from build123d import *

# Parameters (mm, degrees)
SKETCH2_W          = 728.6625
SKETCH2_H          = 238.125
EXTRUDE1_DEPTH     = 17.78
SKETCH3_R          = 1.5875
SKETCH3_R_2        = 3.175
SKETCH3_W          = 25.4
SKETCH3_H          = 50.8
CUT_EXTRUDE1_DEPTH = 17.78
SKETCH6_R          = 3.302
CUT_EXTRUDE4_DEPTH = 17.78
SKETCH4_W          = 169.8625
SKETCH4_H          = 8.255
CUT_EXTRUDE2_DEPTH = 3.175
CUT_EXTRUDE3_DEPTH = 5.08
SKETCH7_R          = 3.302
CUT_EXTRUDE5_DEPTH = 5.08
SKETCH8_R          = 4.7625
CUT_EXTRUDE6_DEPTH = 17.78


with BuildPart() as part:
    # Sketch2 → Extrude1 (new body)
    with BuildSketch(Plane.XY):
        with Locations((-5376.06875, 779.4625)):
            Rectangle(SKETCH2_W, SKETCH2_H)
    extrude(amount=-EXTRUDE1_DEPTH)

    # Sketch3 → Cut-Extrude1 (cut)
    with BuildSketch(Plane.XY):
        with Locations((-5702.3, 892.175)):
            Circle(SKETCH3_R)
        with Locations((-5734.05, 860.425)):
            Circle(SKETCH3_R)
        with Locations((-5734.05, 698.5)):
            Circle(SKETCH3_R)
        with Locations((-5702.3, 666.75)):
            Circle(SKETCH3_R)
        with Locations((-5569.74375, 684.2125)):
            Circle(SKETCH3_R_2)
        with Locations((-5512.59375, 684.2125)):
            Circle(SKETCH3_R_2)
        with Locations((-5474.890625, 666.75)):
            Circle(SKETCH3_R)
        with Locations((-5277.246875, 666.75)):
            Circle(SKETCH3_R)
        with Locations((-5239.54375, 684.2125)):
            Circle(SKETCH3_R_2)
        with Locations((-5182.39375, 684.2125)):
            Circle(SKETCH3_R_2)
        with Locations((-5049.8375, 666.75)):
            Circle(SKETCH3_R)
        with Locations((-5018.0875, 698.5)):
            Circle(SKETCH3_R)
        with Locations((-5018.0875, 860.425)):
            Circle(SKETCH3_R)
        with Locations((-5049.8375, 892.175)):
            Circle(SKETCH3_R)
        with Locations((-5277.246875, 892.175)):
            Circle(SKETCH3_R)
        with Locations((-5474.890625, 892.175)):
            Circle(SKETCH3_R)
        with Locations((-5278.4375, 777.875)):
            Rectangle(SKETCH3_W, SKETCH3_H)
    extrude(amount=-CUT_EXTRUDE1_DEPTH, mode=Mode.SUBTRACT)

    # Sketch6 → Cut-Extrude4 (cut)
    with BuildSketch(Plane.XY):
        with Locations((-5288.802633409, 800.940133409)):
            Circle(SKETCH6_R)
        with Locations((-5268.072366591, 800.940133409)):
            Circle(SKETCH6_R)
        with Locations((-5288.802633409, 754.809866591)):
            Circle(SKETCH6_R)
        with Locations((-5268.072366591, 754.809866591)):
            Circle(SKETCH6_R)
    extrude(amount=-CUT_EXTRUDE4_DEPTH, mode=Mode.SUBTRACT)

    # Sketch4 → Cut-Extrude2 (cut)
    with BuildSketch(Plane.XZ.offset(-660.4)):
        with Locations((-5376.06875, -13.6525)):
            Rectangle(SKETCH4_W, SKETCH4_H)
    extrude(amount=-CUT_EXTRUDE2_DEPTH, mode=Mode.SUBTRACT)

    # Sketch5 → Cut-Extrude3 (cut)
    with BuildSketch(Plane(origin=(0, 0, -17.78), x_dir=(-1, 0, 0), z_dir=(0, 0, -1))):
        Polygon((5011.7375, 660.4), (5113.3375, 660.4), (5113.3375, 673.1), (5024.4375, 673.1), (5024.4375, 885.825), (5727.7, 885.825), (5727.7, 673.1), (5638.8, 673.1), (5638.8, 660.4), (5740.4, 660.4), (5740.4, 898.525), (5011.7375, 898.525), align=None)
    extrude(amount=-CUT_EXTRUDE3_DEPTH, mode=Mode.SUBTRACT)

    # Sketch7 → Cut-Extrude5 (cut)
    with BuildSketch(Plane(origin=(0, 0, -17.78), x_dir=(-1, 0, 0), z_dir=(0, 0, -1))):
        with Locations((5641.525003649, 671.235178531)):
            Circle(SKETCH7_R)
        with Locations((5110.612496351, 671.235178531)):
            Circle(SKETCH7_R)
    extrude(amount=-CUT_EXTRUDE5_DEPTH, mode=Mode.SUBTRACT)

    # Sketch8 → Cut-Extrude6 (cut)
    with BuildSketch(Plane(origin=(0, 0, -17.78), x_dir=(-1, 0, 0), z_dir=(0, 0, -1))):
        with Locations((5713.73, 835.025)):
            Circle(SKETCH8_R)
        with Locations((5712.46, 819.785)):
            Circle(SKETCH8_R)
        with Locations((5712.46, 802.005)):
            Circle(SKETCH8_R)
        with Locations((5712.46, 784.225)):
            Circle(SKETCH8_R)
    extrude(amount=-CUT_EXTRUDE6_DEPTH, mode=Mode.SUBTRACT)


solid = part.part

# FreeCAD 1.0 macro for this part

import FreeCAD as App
import Part
import Sketcher
from FreeCAD import Vector
Q = App.Units.Quantity


def add_polygon(sketch, points):
    """Adds a closed chain of lines whose ends are joined by coincident constraints."""
    first, n = sketch.GeometryCount, len(points)
    for a, b in zip(points, points[1:] + points[:1]):
        sketch.addGeometry(Part.LineSegment(App.Vector(*a, 0), App.Vector(*b, 0)), False)
    for i in range(n):
        sketch.addConstraint(Sketcher.Constraint("Coincident", first + i, 2, first + (i + 1) % n, 1))

doc = App.newDocument("Part")
body = doc.addObject("PartDesign::Body", "Body")

# Sketch on XY plane
sketch1 = body.newObject("Sketcher::SketchObject", "Sketch")
sketch1.AttachmentSupport = (doc.getObject("XY_Plane"), [""])
sketch1.MapMode = "FlatFace"
add_polygon(sketch1, [(-5740, 899), (-5740, 660), (-5012, 660), (-5012, 899)])  # lines 0-3
sketch1.addConstraint([
    Sketcher.Constraint("Vertical", 0),
    Sketcher.Constraint("Horizontal", 1),
    Sketcher.Constraint("Vertical", 2),
    Sketcher.Constraint("Horizontal", 3),
    Sketcher.Constraint("DistanceX", 0, 2, -1, 1, Q("226 in")),
    Sketcher.Constraint("DistanceY", -1, 1, 0, 2, Q("26 in")),
    Sketcher.Constraint("DistanceX", 1, 1, 1, 2, Q("28.6875 in")),
    Sketcher.Constraint("DistanceY", 0, 2, 0, 1, Q("9.375 in")),
])
pad1 = body.newObject("PartDesign::Pad", "Pad")
pad1.Profile = sketch1
pad1.Length = Q("0.7 in")
pad1.Reversed = True

# Sketch on XY plane
sketch2 = body.newObject("Sketcher::SketchObject", "Sketch001")
sketch2.AttachmentSupport = (doc.getObject("XY_Plane"), [""])
sketch2.MapMode = "FlatFace"
sketch2.addGeometry(Part.Circle(Vector(-5702.3, 892.2, 0), Vector(0, 0, 1), 1.6), False)  # 0
sketch2.addGeometry(Part.Circle(Vector(-5734.1, 860.4, 0), Vector(0, 0, 1), 1.6), False)  # 1
sketch2.addGeometry(Part.Circle(Vector(-5734.1, 698.5, 0), Vector(0, 0, 1), 1.6), False)  # 2
sketch2.addGeometry(Part.Circle(Vector(-5702.3, 666.8, 0), Vector(0, 0, 1), 1.6), False)  # 3
sketch2.addGeometry(Part.Circle(Vector(-5569.7, 684.2, 0), Vector(0, 0, 1), 3.2), False)  # 4
sketch2.addGeometry(Part.Circle(Vector(-5512.6, 684.2, 0), Vector(0, 0, 1), 3.2), False)  # 5
sketch2.addGeometry(Part.Circle(Vector(-5474.9, 666.8, 0), Vector(0, 0, 1), 1.6), False)  # 6
sketch2.addGeometry(Part.Circle(Vector(-5277.2, 666.8, 0), Vector(0, 0, 1), 1.6), False)  # 7
sketch2.addGeometry(Part.Circle(Vector(-5239.5, 684.2, 0), Vector(0, 0, 1), 3.2), False)  # 8
sketch2.addGeometry(Part.Circle(Vector(-5182.4, 684.2, 0), Vector(0, 0, 1), 3.2), False)  # 9
sketch2.addGeometry(Part.Circle(Vector(-5049.8, 666.8, 0), Vector(0, 0, 1), 1.6), False)  # 10
sketch2.addGeometry(Part.Circle(Vector(-5018.1, 698.5, 0), Vector(0, 0, 1), 1.6), False)  # 11
sketch2.addGeometry(Part.Circle(Vector(-5018.1, 860.4, 0), Vector(0, 0, 1), 1.6), False)  # 12
sketch2.addGeometry(Part.Circle(Vector(-5049.8, 892.2, 0), Vector(0, 0, 1), 1.6), False)  # 13
sketch2.addGeometry(Part.Circle(Vector(-5277.2, 892.2, 0), Vector(0, 0, 1), 1.6), False)  # 14
sketch2.addGeometry(Part.Circle(Vector(-5474.9, 892.2, 0), Vector(0, 0, 1), 1.6), False)  # 15
add_polygon(sketch2, [(-5291.1, 803.3), (-5291.1, 752.5), (-5265.7, 752.5), (-5265.7, 803.3)])  # lines 16-19
sketch2.addConstraint([
    Sketcher.Constraint("Vertical", 16),
    Sketcher.Constraint("Horizontal", 17),
    Sketcher.Constraint("Vertical", 18),
    Sketcher.Constraint("Horizontal", 19),
    Sketcher.Constraint("Equal", 0, 1),
    Sketcher.Constraint("Equal", 1, 2),
    Sketcher.Constraint("Equal", 2, 3),
    Sketcher.Constraint("Equal", 4, 5),
    Sketcher.Constraint("Equal", 3, 6),
    Sketcher.Constraint("Equal", 6, 7),
    Sketcher.Constraint("Equal", 5, 8),
    Sketcher.Constraint("Equal", 8, 9),
    Sketcher.Constraint("Equal", 7, 10),
    Sketcher.Constraint("Equal", 10, 11),
    Sketcher.Constraint("Equal", 11, 12),
    Sketcher.Constraint("Equal", 12, 13),
    Sketcher.Constraint("Equal", 13, 14),
    Sketcher.Constraint("Equal", 14, 15),
    Sketcher.Constraint("Horizontal", 4, 3, 5, 3),
    Sketcher.Constraint("Horizontal", 3, 3, 6, 3),
    Sketcher.Constraint("Horizontal", 6, 3, 7, 3),
    Sketcher.Constraint("Horizontal", 5, 3, 8, 3),
    Sketcher.Constraint("Horizontal", 8, 3, 9, 3),
    Sketcher.Constraint("Horizontal", 7, 3, 10, 3),
    Sketcher.Constraint("Horizontal", 2, 3, 11, 3),
    Sketcher.Constraint("Horizontal", 1, 3, 12, 3),
    Sketcher.Constraint("Horizontal", 0, 3, 13, 3),
    Sketcher.Constraint("Horizontal", 13, 3, 14, 3),
    Sketcher.Constraint("Horizontal", 14, 3, 15, 3),
    Sketcher.Constraint("Vertical", 1, 3, 2, 3),
    Sketcher.Constraint("Vertical", 0, 3, 3, 3),
    Sketcher.Constraint("Vertical", 11, 3, 12, 3),
    Sketcher.Constraint("Vertical", 10, 3, 13, 3),
    Sketcher.Constraint("Vertical", 7, 3, 14, 3),
    Sketcher.Constraint("Vertical", 6, 3, 15, 3),
    Sketcher.Constraint("Diameter", 4, Q("0.25 in")),
    Sketcher.Constraint("DistanceX", 17, 1, 17, 2, Q("1 in")),
    Sketcher.Constraint("DistanceY", 16, 2, 16, 1, Q("2 in")),
    Sketcher.Constraint("Diameter", 0, Q("0.125 in")),
    Sketcher.Constraint("DistanceX", 4, 3, 8, 3, Q("13 in")),
    Sketcher.Constraint("DistanceX", 5, 3, 9, 3, Q("13 in")),
    Sketcher.Constraint("DistanceX", 0, 3, -1, 1, Q("224.5 in")),
    Sketcher.Constraint("DistanceY", -1, 1, 2, 3, Q("27.5 in")),
    Sketcher.Constraint("DistanceY", 16, 2, 14, 3, Q("5.5 in")),
    Sketcher.Constraint("DistanceX", 1, 3, -1, 1, Q("225.75 in")),
    Sketcher.Constraint("DistanceY", -1, 1, 3, 3, Q("26.25 in")),
    Sketcher.Constraint("DistanceY", 1, 3, 0, 3, Q("1.25 in")),
    Sketcher.Constraint("DistanceX", 4, 3, 5, 3, Q("2.25 in")),
    Sketcher.Constraint("DistanceX", 10, 3, 11, 3, Q("1.25 in")),
    Sketcher.Constraint("DistanceY", -1, 1, 0, 3, Q("35.125 in")),
    Sketcher.Constraint("DistanceX", 4, 3, -1, 1, Q("219.28125 in")),
    Sketcher.Constraint("DistanceY", -1, 1, 4, 3, Q("26.9375 in")),
    Sketcher.Constraint("DistanceX", 6, 3, -1, 1, Q("215.546875 in")),
    Sketcher.Constraint("DistanceX", 7, 3, -1, 1, Q("207.765625 in")),
    Sketcher.Constraint("DistanceX", 10, 3, -1, 1, Q("198.8125 in")),
    Sketcher.Constraint("DistanceX", 16, 2, -1, 1, Q("208.3125 in")),
])
pocket1 = body.newObject("PartDesign::Pocket", "Pocket")
pocket1.Profile = sketch2
pocket1.Length = Q("0.7 in")

# Sketch on XY plane
sketch3 = body.newObject("Sketcher::SketchObject", "Sketch002")
sketch3.AttachmentSupport = (doc.getObject("XY_Plane"), [""])
sketch3.MapMode = "FlatFace"
sketch3.addGeometry([
    Part.Circle(Vector(-5288.8, 800.9, 0), Vector(0, 0, 1), 3.3),
    Part.Circle(Vector(-5268.1, 800.9, 0), Vector(0, 0, 1), 3.3),
    Part.Circle(Vector(-5288.8, 754.8, 0), Vector(0, 0, 1), 3.3),
    Part.Circle(Vector(-5268.1, 754.8, 0), Vector(0, 0, 1), 3.3),
], False)
sketch3.addConstraint([
    Sketcher.Constraint("Equal", 0, 1),
    Sketcher.Constraint("Equal", 1, 2),
    Sketcher.Constraint("Equal", 2, 3),
    Sketcher.Constraint("Horizontal", 0, 3, 1, 3),
    Sketcher.Constraint("Horizontal", 2, 3, 3, 3),
    Sketcher.Constraint("Vertical", 0, 3, 2, 3),
    Sketcher.Constraint("Vertical", 1, 3, 3, 3),
    Sketcher.Constraint("Diameter", 0, Q("0.26 in")),
    Sketcher.Constraint("DistanceX", 0, 3, -1, 1, Q("5288.802633 mm")),
    Sketcher.Constraint("DistanceY", -1, 1, 0, 3, Q("800.940133 mm")),
    Sketcher.Constraint("DistanceX", 1, 3, -1, 1, Q("5268.072367 mm")),
    Sketcher.Constraint("DistanceY", -1, 1, 2, 3, Q("754.809867 mm")),
])
pocket2 = body.newObject("PartDesign::Pocket", "Pocket001")
pocket2.Profile = sketch3
pocket2.Length = Q("0.7 in")

# Sketch on XZ plane
sketch4 = body.newObject("Sketcher::SketchObject", "Sketch003")
sketch4.AttachmentSupport = (doc.getObject("XZ_Plane"), [""])
sketch4.MapMode = "FlatFace"
sketch4.AttachmentOffset = App.Placement(Vector(0, 0, -26 * 25.4), App.Rotation())
add_polygon(sketch4, [(-5461, -10), (-5461, -18), (-5291, -18), (-5291, -10)])  # lines 0-3
sketch4.addConstraint([
    Sketcher.Constraint("Vertical", 0),
    Sketcher.Constraint("Horizontal", 1),
    Sketcher.Constraint("Vertical", 2),
    Sketcher.Constraint("Horizontal", 3),
    Sketcher.Constraint("DistanceX", 0, 2, -1, 1, Q("215 in")),
    Sketcher.Constraint("DistanceY", 0, 2, -1, 1, Q("0.7 in")),
    Sketcher.Constraint("DistanceX", 1, 1, 1, 2, Q("6.6875 in")),
    Sketcher.Constraint("DistanceY", 0, 2, 0, 1, Q("0.325 in")),
])
pocket3 = body.newObject("PartDesign::Pocket", "Pocket002")
pocket3.Profile = sketch4
pocket3.Length = Q("0.125 in")

# Sketch on XY plane
sketch5 = body.newObject("Sketcher::SketchObject", "Sketch004")
sketch5.AttachmentSupport = (doc.getObject("XY_Plane"), [""])
sketch5.MapMode = "FlatFace"
sketch5.AttachmentOffset = App.Placement(Vector(0, 0, -0.7 * 25.4), App.Rotation())
add_polygon(sketch5, [(-5012, 660), (-5113, 660), (-5113, 673), (-5024, 673), (-5024, 886), (-5728, 886), (-5728, 673), (-5639, 673), (-5639, 660), (-5740, 660), (-5740, 899), (-5012, 899)])  # lines 0-11
sketch5.addConstraint([
    Sketcher.Constraint("Horizontal", 0),
    Sketcher.Constraint("Vertical", 1),
    Sketcher.Constraint("Horizontal", 2),
    Sketcher.Constraint("Vertical", 3),
    Sketcher.Constraint("Horizontal", 4),
    Sketcher.Constraint("Vertical", 5),
    Sketcher.Constraint("Horizontal", 6),
    Sketcher.Constraint("Vertical", 7),
    Sketcher.Constraint("Horizontal", 8),
    Sketcher.Constraint("Vertical", 9),
    Sketcher.Constraint("Horizontal", 10),
    Sketcher.Constraint("Vertical", 11),
    Sketcher.Constraint("Horizontal", 2, 2, 5, 2),
    Sketcher.Constraint("Horizontal", 0, 2, 7, 2),
    Sketcher.Constraint("Equal", 2, 6),
    Sketcher.Constraint("Equal", 0, 8),
    Sketcher.Constraint("DistanceX", 0, 2, 0, 1, Q("4 in")),
    Sketcher.Constraint("DistanceX", 2, 1, 2, 2, Q("3.5 in")),
    Sketcher.Constraint("DistanceY", 1, 1, 1, 2, Q("0.5 in")),
    Sketcher.Constraint("DistanceY", -1, 1, 0, 2, Q("26 in")),
    Sketcher.Constraint("DistanceX", 6, 2, -1, 1, Q("222 in")),
    Sketcher.Constraint("DistanceY", 4, 2, 9, 2, Q("0.5 in")),
    Sketcher.Constraint("DistanceX", 4, 2, 4, 1, Q("27.6875 in")),
    Sketcher.Constraint("DistanceY", 3, 1, 3, 2, Q("8.375 in")),
])
pocket4 = body.newObject("PartDesign::Pocket", "Pocket003")
pocket4.Profile = sketch5
pocket4.Length = Q("0.2 in")
pocket4.Reversed = True

# Sketch on XY plane
sketch6 = body.newObject("Sketcher::SketchObject", "Sketch005")
sketch6.AttachmentSupport = (doc.getObject("XY_Plane"), [""])
sketch6.MapMode = "FlatFace"
sketch6.AttachmentOffset = App.Placement(Vector(0, 0, -0.7 * 25.4), App.Rotation())
sketch6.addGeometry([
    Part.Circle(Vector(-5641.5, 671.2, 0), Vector(0, 0, 1), 3.3),
    Part.Circle(Vector(-5110.6, 671.2, 0), Vector(0, 0, 1), 3.3),
], False)
sketch6.addConstraint([
    Sketcher.Constraint("Equal", 0, 1),
    Sketcher.Constraint("Horizontal", 0, 3, 1, 3),
    Sketcher.Constraint("Diameter", 0, Q("0.26 in")),
    Sketcher.Constraint("DistanceY", -1, 1, 0, 3, Q("671.235179 mm")),
    Sketcher.Constraint("DistanceX", 0, 3, -1, 1, Q("5641.525004 mm")),
    Sketcher.Constraint("DistanceX", 1, 3, -1, 1, Q("5110.612496 mm")),
])
pocket5 = body.newObject("PartDesign::Pocket", "Pocket004")
pocket5.Profile = sketch6
pocket5.Length = Q("0.2 in")
pocket5.Reversed = True

# Sketch on XY plane
sketch7 = body.newObject("Sketcher::SketchObject", "Sketch006")
sketch7.AttachmentSupport = (doc.getObject("XY_Plane"), [""])
sketch7.MapMode = "FlatFace"
sketch7.AttachmentOffset = App.Placement(Vector(0, 0, -0.7 * 25.4), App.Rotation())
sketch7.addGeometry([
    Part.Circle(Vector(-5713.7, 835, 0), Vector(0, 0, 1), 4.8),
    Part.Circle(Vector(-5712.5, 819.8, 0), Vector(0, 0, 1), 4.8),
    Part.Circle(Vector(-5712.5, 802, 0), Vector(0, 0, 1), 4.8),
    Part.Circle(Vector(-5712.5, 784.2, 0), Vector(0, 0, 1), 4.8),
], False)
sketch7.addConstraint([
    Sketcher.Constraint("Equal", 0, 1),
    Sketcher.Constraint("Equal", 1, 2),
    Sketcher.Constraint("Equal", 2, 3),
    Sketcher.Constraint("Vertical", 1, 3, 2, 3),
    Sketcher.Constraint("Vertical", 2, 3, 3, 3),
    Sketcher.Constraint("Diameter", 0, Q("0.375 in")),
    Sketcher.Constraint("DistanceY", 3, 3, 0, 3, Q("2 in")),
    Sketcher.Constraint("DistanceX", 1, 3, -1, 1, Q("224.9 in")),
    Sketcher.Constraint("DistanceY", 1, 3, 0, 3, Q("0.6 in")),
    Sketcher.Constraint("DistanceY", 2, 3, 1, 3, Q("0.7 in")),
    Sketcher.Constraint("DistanceX", 0, 3, -1, 1, Q("224.95 in")),
    Sketcher.Constraint("DistanceY", -1, 1, 0, 3, Q("32.875 in")),
])
pocket6 = body.newObject("PartDesign::Pocket", "Pocket005")
pocket6.Profile = sketch7
pocket6.Length = Q("0.7 in")
pocket6.Reversed = True

doc.recompute()
